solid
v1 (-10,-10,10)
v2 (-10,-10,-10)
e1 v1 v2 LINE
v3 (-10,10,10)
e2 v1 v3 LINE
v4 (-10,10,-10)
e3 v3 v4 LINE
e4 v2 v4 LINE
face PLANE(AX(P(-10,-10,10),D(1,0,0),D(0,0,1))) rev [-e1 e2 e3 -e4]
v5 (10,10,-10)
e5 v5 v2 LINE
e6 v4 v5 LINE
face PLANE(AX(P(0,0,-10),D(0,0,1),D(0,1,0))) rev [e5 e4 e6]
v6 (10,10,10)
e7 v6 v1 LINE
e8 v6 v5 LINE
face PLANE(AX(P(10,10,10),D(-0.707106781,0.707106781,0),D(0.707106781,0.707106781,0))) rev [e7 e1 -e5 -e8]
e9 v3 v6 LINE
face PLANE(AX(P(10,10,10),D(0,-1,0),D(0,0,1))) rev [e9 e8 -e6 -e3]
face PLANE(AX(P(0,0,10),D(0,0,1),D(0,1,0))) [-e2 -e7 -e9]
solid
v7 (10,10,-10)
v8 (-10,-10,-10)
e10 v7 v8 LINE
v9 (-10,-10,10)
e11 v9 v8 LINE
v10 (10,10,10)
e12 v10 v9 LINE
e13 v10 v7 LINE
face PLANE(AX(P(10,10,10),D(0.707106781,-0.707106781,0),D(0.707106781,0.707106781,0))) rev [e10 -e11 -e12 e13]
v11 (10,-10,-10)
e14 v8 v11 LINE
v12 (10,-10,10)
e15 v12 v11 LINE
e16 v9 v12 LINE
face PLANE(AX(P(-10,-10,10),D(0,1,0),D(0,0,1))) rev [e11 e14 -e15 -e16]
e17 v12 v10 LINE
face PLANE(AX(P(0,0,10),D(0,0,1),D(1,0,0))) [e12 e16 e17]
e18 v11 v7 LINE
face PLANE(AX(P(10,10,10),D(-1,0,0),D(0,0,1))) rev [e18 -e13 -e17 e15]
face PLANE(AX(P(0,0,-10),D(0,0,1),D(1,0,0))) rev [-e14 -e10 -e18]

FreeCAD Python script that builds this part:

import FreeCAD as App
import Part
import Sketcher
from FreeCAD import Vector
Q = App.Units.Quantity

doc = App.newDocument("Part")
body = doc.addObject("PartDesign::Body", "Body")

# Sketch on XY plane
sketch1 = body.newObject("Sketcher::SketchObject", "Sketch")
sketch1.AttachmentSupport = (doc.getObject("XY_Plane"), [""])
sketch1.MapMode = "FlatFace"
sketch1.addGeometry([
    Part.LineSegment(Vector(-10, -10, 0), Vector(10, -10, 0)),
    Part.LineSegment(Vector(10, -10, 0), Vector(10, 10, 0)),
    Part.LineSegment(Vector(10, 10, 0), Vector(-10, -10, 0)),
], False)
sketch1.addConstraint([
    Sketcher.Constraint("Coincident", 0, 2, 1, 1),
    Sketcher.Constraint("Coincident", 1, 2, 2, 1),
    Sketcher.Constraint("Coincident", 2, 2, 0, 1),
    Sketcher.Constraint("Horizontal", 0),
    Sketcher.Constraint("Vertical", 1),
    Sketcher.Constraint("Symmetric", 1, 2, 2, 2, -1, 1),
    Sketcher.Constraint("Equal", 0, 1),
    Sketcher.Constraint("DistanceX", 0, 1, 0, 2, Q("20 mm")),
])
pad1 = body.newObject("PartDesign::Pad", "Pad")
pad1.Profile = sketch1
pad1.Length = 20
pad1.Midplane = True
body2 = doc.addObject("PartDesign::Body", "Body001")
doc.recompute()

mirroring = doc.addObject("Part::Mirroring", "Mirroring")
mirroring.Source = body
mirroring.Base = Vector(10, 10, 10)
mirroring.Normal = Vector(0.707106781, -0.707106781, 0)
body2.BaseFeature = mirroring
doc.recompute()
mirroring.Visibility = False

doc.recompute()
